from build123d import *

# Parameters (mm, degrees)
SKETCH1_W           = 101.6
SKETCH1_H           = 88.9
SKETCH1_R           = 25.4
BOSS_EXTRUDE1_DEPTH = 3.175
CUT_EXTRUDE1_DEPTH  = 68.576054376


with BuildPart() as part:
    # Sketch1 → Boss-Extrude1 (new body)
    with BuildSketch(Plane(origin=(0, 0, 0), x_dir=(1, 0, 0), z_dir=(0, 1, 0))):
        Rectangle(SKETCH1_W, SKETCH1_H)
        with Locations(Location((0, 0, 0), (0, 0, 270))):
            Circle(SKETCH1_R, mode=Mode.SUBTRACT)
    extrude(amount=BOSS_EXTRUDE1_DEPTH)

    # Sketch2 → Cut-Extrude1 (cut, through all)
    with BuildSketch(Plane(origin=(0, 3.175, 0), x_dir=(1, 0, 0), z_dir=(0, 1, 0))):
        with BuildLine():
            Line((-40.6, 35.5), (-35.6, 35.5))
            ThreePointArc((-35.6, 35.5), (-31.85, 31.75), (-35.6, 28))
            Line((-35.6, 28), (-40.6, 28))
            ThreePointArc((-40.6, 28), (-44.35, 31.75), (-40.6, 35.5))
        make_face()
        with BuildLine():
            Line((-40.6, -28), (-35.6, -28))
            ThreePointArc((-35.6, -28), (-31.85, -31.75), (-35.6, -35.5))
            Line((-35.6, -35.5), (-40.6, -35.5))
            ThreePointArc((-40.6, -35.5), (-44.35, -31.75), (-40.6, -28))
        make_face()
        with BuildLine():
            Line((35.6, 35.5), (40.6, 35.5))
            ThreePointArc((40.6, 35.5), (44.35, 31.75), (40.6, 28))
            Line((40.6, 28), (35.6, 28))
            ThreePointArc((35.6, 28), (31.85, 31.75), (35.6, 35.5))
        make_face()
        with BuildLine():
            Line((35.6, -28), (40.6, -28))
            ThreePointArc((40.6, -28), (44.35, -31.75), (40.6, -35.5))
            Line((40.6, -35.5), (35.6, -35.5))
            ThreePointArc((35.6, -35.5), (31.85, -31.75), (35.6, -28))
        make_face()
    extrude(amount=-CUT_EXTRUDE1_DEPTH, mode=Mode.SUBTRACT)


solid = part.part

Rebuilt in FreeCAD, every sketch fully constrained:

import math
import FreeCAD as App
import Part
import Sketcher
from FreeCAD import Vector
Q = App.Units.Quantity

doc = App.newDocument("Part")
body = doc.addObject("PartDesign::Body", "Body")

sketch1 = body.newObject("Sketcher::SketchObject", "Sketch")
sketch1.AttachmentSupport = (doc.getObject("XZ_Plane"), [""])
sketch1.MapMode = "FlatFace"
sketch1.addGeometry(Part.LineSegment(Vector(-51, -44, 0), Vector(-51, 44, 0)), False)
sketch1.addGeometry(Part.LineSegment(Vector(-51, 44, 0), Vector(51, 44, 0)), False)
sketch1.addGeometry(Part.LineSegment(Vector(51, 44, 0), Vector(51, -44, 0)), False)
sketch1.addGeometry(Part.LineSegment(Vector(51, -44, 0), Vector(-51, -44, 0)), False)
sketch1.addGeometry(Part.Circle(Vector(0, 0, 0), Vector(0, 0, 1), 25), False)
sketch1.addConstraint(Sketcher.Constraint("Coincident", 0, 2, 1, 1))
sketch1.addConstraint(Sketcher.Constraint("Coincident", 1, 2, 2, 1))
sketch1.addConstraint(Sketcher.Constraint("Coincident", 2, 2, 3, 1))
sketch1.addConstraint(Sketcher.Constraint("Coincident", 3, 2, 0, 1))
sketch1.addConstraint(Sketcher.Constraint("Vertical", 0))
sketch1.addConstraint(Sketcher.Constraint("Horizontal", 1))
sketch1.addConstraint(Sketcher.Constraint("Vertical", 2))
sketch1.addConstraint(Sketcher.Constraint("Horizontal", 3))
sketch1.addConstraint(Sketcher.Constraint("Coincident", 4, 3, -1, 1))
sketch1.addConstraint(Sketcher.Constraint("Symmetric", 0, 2, 2, 2, -1, 1))
sketch1.addConstraint(Sketcher.Constraint("Diameter", 4, Q("2 in")))
sketch1.addConstraint(Sketcher.Constraint("DistanceX", 1, 1, 1, 2, Q("4 in")))
sketch1.addConstraint(Sketcher.Constraint("DistanceY", 0, 1, 0, 2, Q("3.5 in")))
pad1 = body.newObject("PartDesign::Pad", "Pad")
pad1.Profile = sketch1
pad1.Length = Q("0.125 in")
pad1.Reversed = True

sketch2 = body.newObject("Sketcher::SketchObject", "Sketch001")
sketch2.AttachmentSupport = (doc.getObject("XZ_Plane"), [""])
sketch2.MapMode = "FlatFace"
sketch2.AttachmentOffset = App.Placement(Vector(0, 0, -0.125 * 25.4), App.Rotation())
sketch2.addGeometry(Part.LineSegment(Vector(-35.6, -35.5, 0), Vector(-40.6, -35.5, 0)), False)
sketch2.addGeometry(Part.ArcOfCircle(Part.Circle(Vector(-40.6, -31.8, 0), Vector(0, 0, 1), 3.8), math.radians(90), math.radians(270)), False)
sketch2.addGeometry(Part.LineSegment(Vector(-40.6, -28, 0), Vector(-35.6, -28, 0)), False)
sketch2.addGeometry(Part.ArcOfCircle(Part.Circle(Vector(-35.6, -31.8, 0), Vector(0, 0, 1), 3.8), math.radians(-90), math.radians(90)), False)
sketch2.addGeometry(Part.LineSegment(Vector(-35.6, 28, 0), Vector(-40.6, 28, 0)), False)
sketch2.addGeometry(Part.ArcOfCircle(Part.Circle(Vector(-40.6, 31.8, 0), Vector(0, 0, 1), 3.8), math.radians(90), math.radians(270)), False)
sketch2.addGeometry(Part.LineSegment(Vector(-40.6, 35.5, 0), Vector(-35.6, 35.5, 0)), False)
sketch2.addGeometry(Part.ArcOfCircle(Part.Circle(Vector(-35.6, 31.8, 0), Vector(0, 0, 1), 3.8), math.radians(-90), math.radians(90)), False)
sketch2.addGeometry(Part.LineSegment(Vector(40.6, -35.5, 0), Vector(35.6, -35.5, 0)), False)
sketch2.addGeometry(Part.ArcOfCircle(Part.Circle(Vector(35.6, -31.8, 0), Vector(0, 0, 1), 3.8), math.radians(90), math.radians(270)), False)
sketch2.addGeometry(Part.LineSegment(Vector(35.6, -28, 0), Vector(40.6, -28, 0)), False)
sketch2.addGeometry(Part.ArcOfCircle(Part.Circle(Vector(40.6, -31.8, 0), Vector(0, 0, 1), 3.8), math.radians(-90), math.radians(90)), False)
sketch2.addGeometry(Part.LineSegment(Vector(40.6, 28, 0), Vector(35.6, 28, 0)), False)
sketch2.addGeometry(Part.ArcOfCircle(Part.Circle(Vector(35.6, 31.8, 0), Vector(0, 0, 1), 3.8), math.radians(90), math.radians(270)), False)
sketch2.addGeometry(Part.LineSegment(Vector(35.6, 35.5, 0), Vector(40.6, 35.5, 0)), False)
sketch2.addGeometry(Part.ArcOfCircle(Part.Circle(Vector(40.6, 31.8, 0), Vector(0, 0, 1), 3.8), math.radians(-90), math.radians(90)), False)
sketch2.addConstraint(Sketcher.Constraint("Tangent", 0, 2, 1, 2))
sketch2.addConstraint(Sketcher.Constraint("Tangent", 1, 1, 2, 1))
sketch2.addConstraint(Sketcher.Constraint("Tangent", 2, 2, 3, 2))
sketch2.addConstraint(Sketcher.Constraint("Tangent", 3, 1, 0, 1))
sketch2.addConstraint(Sketcher.Constraint("Tangent", 4, 2, 5, 2))
sketch2.addConstraint(Sketcher.Constraint("Tangent", 5, 1, 6, 1))
sketch2.addConstraint(Sketcher.Constraint("Tangent", 6, 2, 7, 2))
sketch2.addConstraint(Sketcher.Constraint("Tangent", 7, 1, 4, 1))
sketch2.addConstraint(Sketcher.Constraint("Tangent", 8, 2, 9, 2))
sketch2.addConstraint(Sketcher.Constraint("Tangent", 9, 1, 10, 1))
sketch2.addConstraint(Sketcher.Constraint("Tangent", 10, 2, 11, 2))
sketch2.addConstraint(Sketcher.Constraint("Tangent", 11, 1, 8, 1))
sketch2.addConstraint(Sketcher.Constraint("Tangent", 12, 2, 13, 2))
sketch2.addConstraint(Sketcher.Constraint("Tangent", 13, 1, 14, 1))
sketch2.addConstraint(Sketcher.Constraint("Tangent", 14, 2, 15, 2))
sketch2.addConstraint(Sketcher.Constraint("Tangent", 15, 1, 12, 1))
sketch2.addConstraint(Sketcher.Constraint("Horizontal", 0))
sketch2.addConstraint(Sketcher.Constraint("Horizontal", 2))
sketch2.addConstraint(Sketcher.Constraint("Horizontal", 4))
sketch2.addConstraint(Sketcher.Constraint("Horizontal", 6))
sketch2.addConstraint(Sketcher.Constraint("Horizontal", 8))
sketch2.addConstraint(Sketcher.Constraint("Horizontal", 10))
sketch2.addConstraint(Sketcher.Constraint("Horizontal", 12))
sketch2.addConstraint(Sketcher.Constraint("Horizontal", 14))
sketch2.addConstraint(Sketcher.Constraint("Equal", 3, 5))
sketch2.addConstraint(Sketcher.Constraint("Equal", 7, 9))
sketch2.addConstraint(Sketcher.Constraint("Equal", 11, 13))
sketch2.addConstraint(Sketcher.Constraint("Symmetric", 7, 3, 9, 3, -1, 1))
sketch2.addConstraint(Sketcher.Constraint("Symmetric", 3, 3, 13, 3, -1, 1))
sketch2.addConstraint(Sketcher.Constraint("Symmetric", 3, 3, 9, 3, -2))
sketch2.addConstraint(Sketcher.Constraint("Vertical", 1, 3, 5, 3))
sketch2.addConstraint(Sketcher.Constraint("Vertical", 11, 3, 15, 3))
sketch2.addConstraint(Sketcher.Constraint("Equal", 6, 8))
sketch2.addConstraint(Sketcher.Constraint("DistanceX", 1, 3, 9, 3, Q("3 in")))
sketch2.addConstraint(Sketcher.Constraint("DistanceY", 1, 3, 5, 3, Q("2.5 in")))
sketch2.addConstraint(Sketcher.Constraint("Radius", 1, 3.75))
sketch2.addConstraint(Sketcher.Constraint("DistanceX", 0, 2, 0, 1, 5.0))
pocket1 = body.newObject("PartDesign::Pocket", "Pocket")
pocket1.Profile = sketch2
pocket1.Type = "ThroughAll"
pocket1.Reversed = True

doc.recompute()
